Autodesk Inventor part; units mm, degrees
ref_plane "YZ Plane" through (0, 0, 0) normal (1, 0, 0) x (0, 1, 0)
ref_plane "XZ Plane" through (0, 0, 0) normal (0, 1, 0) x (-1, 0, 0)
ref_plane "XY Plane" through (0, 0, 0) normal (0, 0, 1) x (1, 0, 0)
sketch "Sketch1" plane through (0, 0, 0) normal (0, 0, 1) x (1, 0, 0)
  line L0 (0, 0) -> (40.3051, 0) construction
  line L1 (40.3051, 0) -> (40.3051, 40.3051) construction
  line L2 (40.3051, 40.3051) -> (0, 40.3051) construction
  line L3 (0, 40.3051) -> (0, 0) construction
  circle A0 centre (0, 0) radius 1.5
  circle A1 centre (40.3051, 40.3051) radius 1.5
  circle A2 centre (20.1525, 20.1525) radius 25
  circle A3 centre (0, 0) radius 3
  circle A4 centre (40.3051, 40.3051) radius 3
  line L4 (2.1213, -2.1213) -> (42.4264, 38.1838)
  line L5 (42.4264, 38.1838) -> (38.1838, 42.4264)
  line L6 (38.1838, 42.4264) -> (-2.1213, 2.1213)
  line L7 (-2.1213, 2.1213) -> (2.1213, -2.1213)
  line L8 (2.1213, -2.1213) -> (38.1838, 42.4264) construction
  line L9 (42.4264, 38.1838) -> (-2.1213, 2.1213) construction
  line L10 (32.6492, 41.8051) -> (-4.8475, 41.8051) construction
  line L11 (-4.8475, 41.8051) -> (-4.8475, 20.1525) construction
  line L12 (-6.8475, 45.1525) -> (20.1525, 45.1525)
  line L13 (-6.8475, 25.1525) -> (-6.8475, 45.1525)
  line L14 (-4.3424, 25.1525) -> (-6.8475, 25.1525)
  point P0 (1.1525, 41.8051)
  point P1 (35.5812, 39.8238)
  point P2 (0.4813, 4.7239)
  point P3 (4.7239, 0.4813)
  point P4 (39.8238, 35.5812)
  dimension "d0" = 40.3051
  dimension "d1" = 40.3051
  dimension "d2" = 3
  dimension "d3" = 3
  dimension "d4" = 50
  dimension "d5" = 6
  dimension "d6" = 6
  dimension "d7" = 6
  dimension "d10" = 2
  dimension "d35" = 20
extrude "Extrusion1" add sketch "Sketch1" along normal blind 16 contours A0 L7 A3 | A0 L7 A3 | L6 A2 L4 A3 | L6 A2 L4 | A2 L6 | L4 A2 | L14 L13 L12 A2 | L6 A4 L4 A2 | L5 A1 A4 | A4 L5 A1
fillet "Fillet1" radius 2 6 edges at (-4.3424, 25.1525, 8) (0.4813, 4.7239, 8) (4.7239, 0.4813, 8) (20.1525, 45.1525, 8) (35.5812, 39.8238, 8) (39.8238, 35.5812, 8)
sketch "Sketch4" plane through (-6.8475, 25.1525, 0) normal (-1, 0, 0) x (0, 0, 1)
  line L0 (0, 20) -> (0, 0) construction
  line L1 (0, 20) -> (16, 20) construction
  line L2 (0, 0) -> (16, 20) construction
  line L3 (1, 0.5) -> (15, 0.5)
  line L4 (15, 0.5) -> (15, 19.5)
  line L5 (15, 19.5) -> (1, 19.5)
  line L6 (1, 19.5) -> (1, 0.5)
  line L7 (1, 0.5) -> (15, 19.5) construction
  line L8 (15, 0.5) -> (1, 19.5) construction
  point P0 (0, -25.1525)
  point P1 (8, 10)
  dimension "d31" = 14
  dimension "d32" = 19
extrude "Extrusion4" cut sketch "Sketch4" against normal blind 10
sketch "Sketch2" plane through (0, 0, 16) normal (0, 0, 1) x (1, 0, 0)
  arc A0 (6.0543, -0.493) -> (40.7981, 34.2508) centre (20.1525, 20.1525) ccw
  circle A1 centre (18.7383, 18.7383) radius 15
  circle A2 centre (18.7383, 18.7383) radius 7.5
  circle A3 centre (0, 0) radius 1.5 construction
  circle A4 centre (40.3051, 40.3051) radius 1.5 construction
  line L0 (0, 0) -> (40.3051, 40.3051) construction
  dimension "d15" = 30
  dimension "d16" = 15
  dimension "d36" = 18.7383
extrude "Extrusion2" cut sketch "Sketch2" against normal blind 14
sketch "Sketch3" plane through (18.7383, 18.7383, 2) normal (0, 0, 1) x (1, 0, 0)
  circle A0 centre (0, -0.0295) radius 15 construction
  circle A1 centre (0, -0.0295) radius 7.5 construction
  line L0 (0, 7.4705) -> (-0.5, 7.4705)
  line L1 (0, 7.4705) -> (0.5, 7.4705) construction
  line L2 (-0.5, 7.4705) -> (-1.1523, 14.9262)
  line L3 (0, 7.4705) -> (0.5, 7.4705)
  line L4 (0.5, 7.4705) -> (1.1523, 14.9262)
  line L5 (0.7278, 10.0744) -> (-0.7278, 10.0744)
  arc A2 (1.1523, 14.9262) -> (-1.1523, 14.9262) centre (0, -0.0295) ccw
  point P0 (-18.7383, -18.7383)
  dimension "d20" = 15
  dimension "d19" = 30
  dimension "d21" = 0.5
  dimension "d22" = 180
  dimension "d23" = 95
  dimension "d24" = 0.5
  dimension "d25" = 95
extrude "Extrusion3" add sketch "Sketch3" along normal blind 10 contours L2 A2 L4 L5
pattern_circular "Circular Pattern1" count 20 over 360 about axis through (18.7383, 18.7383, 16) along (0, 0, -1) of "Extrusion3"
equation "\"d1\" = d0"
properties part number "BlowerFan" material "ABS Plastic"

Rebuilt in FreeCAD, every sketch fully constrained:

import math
import FreeCAD as App
import Part
import Sketcher
from FreeCAD import Vector
Q = App.Units.Quantity


def edges_at(feature, points):
    """Names of the edges that pass closest to the given points."""
    edges = feature.Shape.Edges
    near = lambda p: min(range(len(edges)), key=lambda i: edges[i].distToShape(Part.Vertex(*p))[0])
    return sorted({f"Edge{near(p) + 1}" for p in points})

doc = App.newDocument("Part")
params = doc.addObject("Spreadsheet::Sheet", "Params")
for row, (alias, value) in enumerate([
    ("sketch1_diameter", "3 mm"),
    ("sketch1_radius", "3 mm"),
    ("sketch1_radius2", "25 mm"),
    ("sketch1_height", "20 mm"),
    ("sketch1_width", "27 mm"),
    ("pad1_length", "16 mm"),
    ("fillet_radius", "2 mm"),
    ("sketch2_width", "19 mm"),
    ("sketch2_height", "14 mm"),
    ("pocket1_length", "10 mm"),
    ("sketch3_diameter", "30 mm"),
    ("sketch3_diameter2", "15 mm"),
    ("pocket2_length", "14 mm"),
    ("sketch4_radius", "15 mm"),
    ("pad2_length", "10 mm"),
], start=1):
    params.set(f"A{row}", alias)
    params.set(f"B{row}", "=" + value)
    params.setAlias(f"B{row}", alias)

body = doc.addObject("PartDesign::Body", "Body")

# Sketch on XY plane
sketch1 = doc.addObject("Sketcher::SketchObject", "Sketch")
body.addObject(sketch1)
sketch1.AttachmentSupport = (doc.XY_Plane, [""])
sketch1.MapMode = "FlatFace"
sketch1.addGeometry([
    Part.ArcOfCircle(Part.Circle(Vector(0, 0, 0), Vector(0, 0, 1), 3), math.radians(135), math.radians(315)),  # 0
    Part.LineSegment(Vector(2.1, -2.1, 0), Vector(4.7, 0.5, 0)),  # 1
    Part.ArcOfCircle(Part.Circle(Vector(20.2, 20.2, 0), Vector(0, 0, 1), 25), math.radians(-128), math.radians(38)),  # 2
    Part.LineSegment(Vector(39.8, 35.6, 0), Vector(42.4, 38.2, 0)),  # 3
    Part.ArcOfCircle(Part.Circle(Vector(40.3, 40.3, 0), Vector(0, 0, 1), 3), math.radians(-45), math.radians(135)),  # 4
    Part.LineSegment(Vector(38.2, 42.4, 0), Vector(35.6, 39.8, 0)),  # 5
    Part.ArcOfCircle(Part.Circle(Vector(20.2, 20.2, 0), Vector(0, 0, 1), 25), math.radians(52), math.radians(90)),  # 6
    Part.LineSegment(Vector(20.2, 45.2, 0), Vector(-6.8, 45.2, 0)),  # 7
    Part.LineSegment(Vector(-6.8, 45.2, 0), Vector(-6.8, 25.2, 0)),  # 8
    Part.LineSegment(Vector(-6.8, 25.2, 0), Vector(-4.3, 25.2, 0)),  # 9
    Part.ArcOfCircle(Part.Circle(Vector(20.2, 20.2, 0), Vector(0, 0, 1), 25), math.radians(168), math.radians(218)),  # 10
    Part.LineSegment(Vector(0.5, 4.7, 0), Vector(-2.1, 2.1, 0)),  # 11
    Part.Circle(Vector(0, 0, 0), Vector(0, 0, 1), 1.5),  # 12
    Part.Circle(Vector(40.3, 40.3, 0), Vector(0, 0, 1), 1.5),  # 13
], False)
sketch1.addConstraint([
    Sketcher.Constraint("Tangent", 0, 2, 1, 1),
    Sketcher.Constraint("Coincident", 1, 2, 2, 1),
    Sketcher.Constraint("Coincident", 2, 2, 3, 1),
    Sketcher.Constraint("Tangent", 3, 2, 4, 1),
    Sketcher.Constraint("Tangent", 4, 2, 5, 1),
    Sketcher.Constraint("Coincident", 5, 2, 6, 1),
    Sketcher.Constraint("Tangent", 6, 2, 7, 1),
    Sketcher.Constraint("Coincident", 7, 2, 8, 1),
    Sketcher.Constraint("Coincident", 8, 2, 9, 1),
    Sketcher.Constraint("Coincident", 9, 2, 10, 1),
    Sketcher.Constraint("Coincident", 10, 2, 11, 1),
    Sketcher.Constraint("Tangent", 11, 2, 0, 1),
    Sketcher.Constraint("Horizontal", 7),
    Sketcher.Constraint("Vertical", 8),
    Sketcher.Constraint("Horizontal", 9),
    Sketcher.Constraint("Coincident", 0, 3, -1, 1),
    Sketcher.Constraint("Coincident", 12, 3, -1, 1),
    Sketcher.Constraint("Coincident", 6, 3, 2, 3),
    Sketcher.Constraint("Coincident", 10, 3, 2, 3),
    Sketcher.Constraint("Coincident", 13, 3, 4, 3),
    Sketcher.Constraint("Equal", 0, 4),
    Sketcher.Constraint("Equal", 2, 6),
    Sketcher.Constraint("Equal", 6, 10),
    Sketcher.Constraint("Equal", 12, 13),
    Sketcher.Constraint("Parallel", 1, 3),
    Sketcher.Constraint("Parallel", 3, 5),
    Sketcher.Constraint("Parallel", 5, 11),
    Sketcher.Constraint("Equal", 1, 3),
    Sketcher.Constraint("Equal", 3, 5),
    Sketcher.Constraint("Equal", 5, 11),
    Sketcher.Constraint("Diameter", 12, Q("3 mm")),
    Sketcher.Constraint("Radius", 0, Q("3 mm")),
    Sketcher.Constraint("Radius", 2, Q("25 mm")),
    Sketcher.Constraint("DistanceY", 8, 2, 8, 1, Q("20 mm")),
    Sketcher.Constraint("DistanceX", 7, 2, 7, 1, Q("27 mm")),
    Sketcher.Constraint("Angle", 1, Q("45 deg")),
    Sketcher.Constraint("DistanceX", -1, 1, 4, 3, Q("40.305 mm")),
])
sketch1.setExpression("Constraints[30]", "Params.sketch1_diameter")
sketch1.setExpression("Constraints[31]", "Params.sketch1_radius")
sketch1.setExpression("Constraints[32]", "Params.sketch1_radius2")
sketch1.setExpression("Constraints[33]", "Params.sketch1_height")
sketch1.setExpression("Constraints[34]", "Params.sketch1_width")
pad1 = doc.addObject("PartDesign::Pad", "Pad")
body.addObject(pad1)
pad1.Profile = sketch1
pad1.setExpression("Length", "Params.pad1_length")
doc.recompute()

fillet = doc.addObject("PartDesign::Fillet", "Fillet")
body.addObject(fillet)
fillet.Base = (pad1, edges_at(pad1, [
    (-4.342, 25.152, 8),
    (0.481, 4.724, 8),
    (4.724, 0.481, 8),
    (20.152, 45.153, 8),
    (35.581, 39.824, 8),
    (39.824, 35.581, 8),
]))
fillet.setExpression("Radius", "Params.fillet_radius")

# Sketch on YZ plane
sketch2 = doc.addObject("Sketcher::SketchObject", "Sketch001")
body.addObject(sketch2)
sketch2.AttachmentSupport = (doc.YZ_Plane, [""])
sketch2.MapMode = "FlatFace"
sketch2.AttachmentOffset = App.Placement(Vector(0, 0, -6.8475), App.Rotation())
sketch2.addGeometry([
    Part.LineSegment(Vector(45, 1, 0), Vector(26, 1, 0)),
    Part.LineSegment(Vector(26, 1, 0), Vector(26, 15, 0)),
    Part.LineSegment(Vector(26, 15, 0), Vector(45, 15, 0)),
    Part.LineSegment(Vector(45, 15, 0), Vector(45, 1, 0)),
], False)
sketch2.addConstraint([
    Sketcher.Constraint("Coincident", 0, 2, 1, 1),
    Sketcher.Constraint("Coincident", 1, 2, 2, 1),
    Sketcher.Constraint("Coincident", 2, 2, 3, 1),
    Sketcher.Constraint("Coincident", 3, 2, 0, 1),
    Sketcher.Constraint("Horizontal", 0),
    Sketcher.Constraint("Vertical", 1),
    Sketcher.Constraint("Horizontal", 2),
    Sketcher.Constraint("Vertical", 3),
    Sketcher.Constraint("DistanceX", 0, 2, 0, 1, Q("19 mm")),
    Sketcher.Constraint("DistanceY", 1, 1, 1, 2, Q("14 mm")),
    Sketcher.Constraint("DistanceY", -1, 1, 0, 2, Q("1 mm")),
    Sketcher.Constraint("DistanceX", -1, 1, 0, 2, Q("25.6525 mm")),
])
sketch2.setExpression("Constraints[8]", "Params.sketch2_width")
sketch2.setExpression("Constraints[9]", "Params.sketch2_height")
pocket1 = doc.addObject("PartDesign::Pocket", "Pocket")
body.addObject(pocket1)
pocket1.Profile = sketch2
pocket1.setExpression("Length", "Params.pocket1_length")
pocket1.Reversed = True

# Sketch on XY plane
sketch3 = doc.addObject("Sketcher::SketchObject", "Sketch002")
body.addObject(sketch3)
sketch3.AttachmentSupport = (doc.XY_Plane, [""])
sketch3.MapMode = "FlatFace"
sketch3.AttachmentOffset = App.Placement(Vector(0, 0, 16), App.Rotation())
sketch3.addGeometry([
    Part.Circle(Vector(19, 19, 0), Vector(0, 0, 1), 15),
    Part.Circle(Vector(19, 19, 0), Vector(0, 0, 1), 8),
], False)
sketch3.addConstraint([
    Sketcher.Constraint("Coincident", 1, 3, 0, 3),
    Sketcher.Constraint("Diameter", 0, Q("30 mm")),
    Sketcher.Constraint("Diameter", 1, Q("15 mm")),
    Sketcher.Constraint("DistanceX", -1, 1, 0, 3, Q("18.7383 mm")),
    Sketcher.Constraint("DistanceY", -1, 1, 0, 3, Q("18.7383 mm")),
])
sketch3.setExpression("Constraints[1]", "Params.sketch3_diameter")
sketch3.setExpression("Constraints[2]", "Params.sketch3_diameter2")
pocket2 = doc.addObject("PartDesign::Pocket", "Pocket001")
body.addObject(pocket2)
pocket2.Profile = sketch3
pocket2.setExpression("Length", "Params.pocket2_length")

# Sketch on XY plane
sketch4 = doc.addObject("Sketcher::SketchObject", "Sketch003")
body.addObject(sketch4)
sketch4.AttachmentSupport = (doc.XY_Plane, [""])
sketch4.MapMode = "FlatFace"
sketch4.AttachmentOffset = App.Placement(Vector(0, 0, 2), App.Rotation())
sketch4.addGeometry([
    Part.LineSegment(Vector(17.6, 33.7, 0), Vector(18, 28.8, 0)),
    Part.LineSegment(Vector(18, 28.8, 0), Vector(19.5, 28.8, 0)),
    Part.LineSegment(Vector(19.5, 28.8, 0), Vector(19.9, 33.7, 0)),
    Part.ArcOfCircle(Part.Circle(Vector(18.7, 18.7, 0), Vector(0, 0, 1), 15), math.radians(85.59), math.radians(94.41)),
], False)
sketch4.addConstraint([
    Sketcher.Constraint("Coincident", 0, 2, 1, 1),
    Sketcher.Constraint("Coincident", 1, 2, 2, 1),
    Sketcher.Constraint("Coincident", 2, 2, 3, 1),
    Sketcher.Constraint("Coincident", 3, 2, 0, 1),
    Sketcher.Constraint("Horizontal", 1),
    Sketcher.Constraint("Horizontal", 2, 2, 3, 2),
    Sketcher.Constraint("Equal", 0, 2),
    Sketcher.Constraint("Radius", 3, Q("15 mm")),
    Sketcher.Constraint("Angle", 0, Q("-85 deg")),
    Sketcher.Constraint("DistanceX", 0, 2, 2, 2, Q("1.88 mm")),
    Sketcher.Constraint("DistanceX", 1, 1, 1, 2, Q("1.4556 mm")),
    Sketcher.Constraint("DistanceX", -1, 1, 1, 2, Q("19.466 mm")),
    Sketcher.Constraint("DistanceY", -1, 1, 3, 3, Q("18.7088 mm")),
])
sketch4.setExpression("Constraints[7]", "Params.sketch4_radius")
pad2 = doc.addObject("PartDesign::Pad", "Pad001")
body.addObject(pad2)
pad2.Profile = sketch4
pad2.setExpression("Length", "Params.pad2_length")
doc.recompute()

datumline = doc.addObject("PartDesign::Line", "DatumLine")
body.addObject(datumline)
datumline.Placement = App.Placement(Vector(18.7383, 18.7383, 0), App.Rotation(Vector(0, 0, 1), Vector(0, 0, 1)))
polarpattern = doc.addObject("PartDesign::PolarPattern", "PolarPattern")
body.addObject(polarpattern)
polarpattern.Originals = [pad2]
polarpattern.Axis = (datumline, [""])
polarpattern.Angle = 360
polarpattern.Occurrences = 20
body.Tip = polarpattern

doc.recompute()
